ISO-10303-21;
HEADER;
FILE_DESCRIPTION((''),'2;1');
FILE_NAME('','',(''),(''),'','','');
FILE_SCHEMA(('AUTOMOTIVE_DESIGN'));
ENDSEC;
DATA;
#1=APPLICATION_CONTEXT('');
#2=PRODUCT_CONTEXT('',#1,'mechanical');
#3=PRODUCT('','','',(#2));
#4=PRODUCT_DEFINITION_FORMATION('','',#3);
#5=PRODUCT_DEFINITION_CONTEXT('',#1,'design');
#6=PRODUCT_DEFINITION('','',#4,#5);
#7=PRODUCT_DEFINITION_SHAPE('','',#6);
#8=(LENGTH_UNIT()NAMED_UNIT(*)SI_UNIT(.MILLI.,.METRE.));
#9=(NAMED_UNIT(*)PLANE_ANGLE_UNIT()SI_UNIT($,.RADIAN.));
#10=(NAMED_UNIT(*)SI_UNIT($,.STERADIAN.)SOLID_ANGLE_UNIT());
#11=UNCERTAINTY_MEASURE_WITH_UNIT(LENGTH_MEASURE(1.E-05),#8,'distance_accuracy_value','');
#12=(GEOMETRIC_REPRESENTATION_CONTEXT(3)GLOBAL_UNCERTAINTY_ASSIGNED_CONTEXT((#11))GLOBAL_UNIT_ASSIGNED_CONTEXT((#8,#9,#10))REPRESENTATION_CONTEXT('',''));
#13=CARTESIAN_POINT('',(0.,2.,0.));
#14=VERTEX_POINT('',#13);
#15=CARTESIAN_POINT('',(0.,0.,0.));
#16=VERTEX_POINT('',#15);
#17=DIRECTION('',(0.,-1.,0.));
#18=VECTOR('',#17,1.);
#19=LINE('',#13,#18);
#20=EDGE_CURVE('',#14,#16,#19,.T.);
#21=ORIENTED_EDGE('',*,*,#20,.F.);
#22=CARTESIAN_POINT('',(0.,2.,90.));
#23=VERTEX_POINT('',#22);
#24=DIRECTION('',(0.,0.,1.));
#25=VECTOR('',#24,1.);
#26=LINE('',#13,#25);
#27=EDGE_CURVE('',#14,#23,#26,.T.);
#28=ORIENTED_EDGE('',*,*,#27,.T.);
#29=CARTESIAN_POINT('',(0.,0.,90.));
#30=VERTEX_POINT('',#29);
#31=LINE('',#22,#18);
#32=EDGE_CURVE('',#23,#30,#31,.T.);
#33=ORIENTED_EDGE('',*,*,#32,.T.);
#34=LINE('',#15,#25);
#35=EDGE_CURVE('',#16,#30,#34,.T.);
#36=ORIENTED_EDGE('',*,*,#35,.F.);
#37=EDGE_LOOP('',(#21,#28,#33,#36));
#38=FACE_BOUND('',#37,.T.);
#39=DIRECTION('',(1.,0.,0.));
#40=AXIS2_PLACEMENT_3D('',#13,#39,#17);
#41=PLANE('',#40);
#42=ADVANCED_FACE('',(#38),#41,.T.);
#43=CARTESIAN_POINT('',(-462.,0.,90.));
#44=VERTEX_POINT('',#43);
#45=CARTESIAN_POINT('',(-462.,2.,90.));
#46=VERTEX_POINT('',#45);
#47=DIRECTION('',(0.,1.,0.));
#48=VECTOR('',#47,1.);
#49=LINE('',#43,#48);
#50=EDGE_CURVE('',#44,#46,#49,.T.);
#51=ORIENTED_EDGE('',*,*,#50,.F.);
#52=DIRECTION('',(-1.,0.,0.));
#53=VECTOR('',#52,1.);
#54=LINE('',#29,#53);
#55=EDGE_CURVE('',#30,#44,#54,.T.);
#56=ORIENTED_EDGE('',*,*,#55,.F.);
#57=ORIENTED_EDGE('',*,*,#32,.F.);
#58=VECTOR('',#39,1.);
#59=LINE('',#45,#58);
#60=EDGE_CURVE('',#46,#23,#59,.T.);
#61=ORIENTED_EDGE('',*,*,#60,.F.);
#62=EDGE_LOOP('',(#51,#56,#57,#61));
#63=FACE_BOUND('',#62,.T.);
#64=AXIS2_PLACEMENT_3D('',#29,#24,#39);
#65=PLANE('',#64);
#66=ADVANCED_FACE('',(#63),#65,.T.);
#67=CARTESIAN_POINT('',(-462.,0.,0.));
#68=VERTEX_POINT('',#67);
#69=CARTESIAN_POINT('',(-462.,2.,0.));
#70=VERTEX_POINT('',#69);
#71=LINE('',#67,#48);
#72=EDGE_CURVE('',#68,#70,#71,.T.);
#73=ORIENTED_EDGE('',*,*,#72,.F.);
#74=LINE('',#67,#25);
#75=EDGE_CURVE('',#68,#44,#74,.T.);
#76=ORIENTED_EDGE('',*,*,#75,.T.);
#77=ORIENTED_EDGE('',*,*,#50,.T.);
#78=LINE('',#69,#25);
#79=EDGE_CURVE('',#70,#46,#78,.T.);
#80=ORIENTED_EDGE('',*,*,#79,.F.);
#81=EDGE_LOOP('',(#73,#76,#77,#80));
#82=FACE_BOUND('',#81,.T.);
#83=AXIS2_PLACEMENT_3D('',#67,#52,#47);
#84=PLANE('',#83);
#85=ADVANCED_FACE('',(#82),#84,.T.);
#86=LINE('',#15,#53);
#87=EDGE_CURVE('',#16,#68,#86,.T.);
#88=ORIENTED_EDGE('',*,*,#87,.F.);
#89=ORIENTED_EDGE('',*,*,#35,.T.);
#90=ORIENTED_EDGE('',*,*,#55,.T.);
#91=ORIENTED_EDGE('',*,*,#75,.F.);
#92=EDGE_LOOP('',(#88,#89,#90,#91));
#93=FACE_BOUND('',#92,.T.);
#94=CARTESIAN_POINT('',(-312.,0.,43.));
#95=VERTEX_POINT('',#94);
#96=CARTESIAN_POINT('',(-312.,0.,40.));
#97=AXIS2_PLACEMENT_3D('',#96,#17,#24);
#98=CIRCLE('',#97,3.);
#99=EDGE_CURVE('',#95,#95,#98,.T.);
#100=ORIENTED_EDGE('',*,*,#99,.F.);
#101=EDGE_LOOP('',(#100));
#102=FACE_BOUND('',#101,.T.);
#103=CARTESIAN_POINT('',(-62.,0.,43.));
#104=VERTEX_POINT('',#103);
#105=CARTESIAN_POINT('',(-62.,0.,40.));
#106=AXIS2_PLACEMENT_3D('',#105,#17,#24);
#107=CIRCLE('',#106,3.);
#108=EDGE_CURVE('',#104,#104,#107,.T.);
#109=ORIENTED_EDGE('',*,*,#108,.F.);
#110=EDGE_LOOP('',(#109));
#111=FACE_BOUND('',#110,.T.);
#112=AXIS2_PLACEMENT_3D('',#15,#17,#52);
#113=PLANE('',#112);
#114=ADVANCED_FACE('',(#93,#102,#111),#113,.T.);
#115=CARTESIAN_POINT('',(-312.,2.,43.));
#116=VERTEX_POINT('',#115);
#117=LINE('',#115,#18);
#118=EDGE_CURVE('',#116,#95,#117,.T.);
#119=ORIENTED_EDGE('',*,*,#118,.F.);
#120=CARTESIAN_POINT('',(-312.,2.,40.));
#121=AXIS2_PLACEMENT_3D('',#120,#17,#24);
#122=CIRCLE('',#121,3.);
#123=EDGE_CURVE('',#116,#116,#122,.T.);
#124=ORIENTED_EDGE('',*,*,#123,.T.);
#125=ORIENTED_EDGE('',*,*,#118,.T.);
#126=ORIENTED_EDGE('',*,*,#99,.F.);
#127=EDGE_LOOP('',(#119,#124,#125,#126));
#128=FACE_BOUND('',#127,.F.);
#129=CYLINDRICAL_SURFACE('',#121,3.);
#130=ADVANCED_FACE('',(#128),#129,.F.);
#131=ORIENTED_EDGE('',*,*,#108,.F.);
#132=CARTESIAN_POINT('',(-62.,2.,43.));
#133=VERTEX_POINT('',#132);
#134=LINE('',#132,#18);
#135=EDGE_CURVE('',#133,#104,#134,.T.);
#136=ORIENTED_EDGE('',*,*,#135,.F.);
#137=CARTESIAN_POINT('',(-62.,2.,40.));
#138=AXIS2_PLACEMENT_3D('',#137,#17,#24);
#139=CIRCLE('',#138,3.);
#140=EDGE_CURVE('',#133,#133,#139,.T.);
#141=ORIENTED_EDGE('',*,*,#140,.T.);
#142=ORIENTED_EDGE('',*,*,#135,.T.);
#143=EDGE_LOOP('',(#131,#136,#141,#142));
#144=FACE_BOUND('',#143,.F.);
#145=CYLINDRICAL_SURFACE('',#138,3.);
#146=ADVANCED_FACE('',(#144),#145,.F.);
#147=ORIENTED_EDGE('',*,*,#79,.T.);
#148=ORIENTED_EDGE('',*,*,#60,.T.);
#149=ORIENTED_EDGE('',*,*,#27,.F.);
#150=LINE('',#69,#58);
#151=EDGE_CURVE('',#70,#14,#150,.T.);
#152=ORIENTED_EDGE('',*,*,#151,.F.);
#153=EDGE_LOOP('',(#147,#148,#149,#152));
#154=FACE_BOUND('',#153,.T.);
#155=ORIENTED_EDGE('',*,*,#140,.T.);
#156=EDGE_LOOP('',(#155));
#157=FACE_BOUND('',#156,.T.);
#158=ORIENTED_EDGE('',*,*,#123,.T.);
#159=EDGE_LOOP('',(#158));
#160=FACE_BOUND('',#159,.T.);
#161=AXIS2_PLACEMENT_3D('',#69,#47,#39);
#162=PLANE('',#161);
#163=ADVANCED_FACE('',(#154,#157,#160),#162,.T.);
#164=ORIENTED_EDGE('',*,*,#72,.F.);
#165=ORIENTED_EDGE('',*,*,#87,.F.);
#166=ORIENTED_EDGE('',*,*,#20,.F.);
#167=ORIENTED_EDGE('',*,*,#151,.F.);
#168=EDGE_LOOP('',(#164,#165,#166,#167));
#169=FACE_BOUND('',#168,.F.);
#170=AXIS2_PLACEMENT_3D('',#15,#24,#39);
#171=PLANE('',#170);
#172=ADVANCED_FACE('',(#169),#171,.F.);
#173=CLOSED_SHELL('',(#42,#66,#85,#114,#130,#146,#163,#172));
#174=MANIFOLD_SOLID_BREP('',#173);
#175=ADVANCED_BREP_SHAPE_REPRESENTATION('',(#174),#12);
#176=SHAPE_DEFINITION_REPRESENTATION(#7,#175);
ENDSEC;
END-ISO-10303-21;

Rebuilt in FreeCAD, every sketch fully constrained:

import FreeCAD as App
import Part
import Sketcher

V = App.Vector


def add_polygon(sketch, points):
    """Adds a closed chain of lines whose ends are joined by coincident constraints."""
    first, n = sketch.GeometryCount, len(points)
    for a, b in zip(points, points[1:] + points[:1]):
        sketch.addGeometry(Part.LineSegment(App.Vector(*a, 0), App.Vector(*b, 0)), False)
    for i in range(n):
        sketch.addConstraint(Sketcher.Constraint("Coincident", first + i, 2, first + (i + 1) % n, 1))

doc = App.newDocument("Part")
body = doc.addObject("PartDesign::Body", "Body")

sketch1 = body.newObject("Sketcher::SketchObject", "Sketch")
sketch1.AttachmentSupport = (doc.getObject("XY_Plane"), [""])
sketch1.MapMode = "FlatFace"
add_polygon(sketch1, [(-462, 0), (0, 0), (0, 2), (-462, 2)])
sketch1.addConstraint([
    Sketcher.Constraint("Horizontal", 0),
    Sketcher.Constraint("Vertical", 1),
    Sketcher.Constraint("Horizontal", 2),
    Sketcher.Constraint("Vertical", 3),
    Sketcher.Constraint("Coincident", 0, 2, -1, 1),
    Sketcher.Constraint("DistanceX", 0, 1, 0, 2, 462.0),
    Sketcher.Constraint("DistanceY", 1, 1, 1, 2, 2.0),
])
pad1 = body.newObject("PartDesign::Pad", "Pad")
pad1.Profile = sketch1
pad1.Length = 90

sketch2 = body.newObject("Sketcher::SketchObject", "Sketch001")
sketch2.AttachmentSupport = (doc.getObject("XZ_Plane"), [""])
sketch2.MapMode = "FlatFace"
sketch2.AttachmentOffset = App.Placement(V(0, 0, -2), App.Rotation())
sketch2.addGeometry(Part.Circle(V(-312, 40, 0), V(0, 0, 1), 3), False)
sketch2.addConstraint([
    Sketcher.Constraint("Diameter", 0, 6.0),
    Sketcher.Constraint("DistanceX", 0, 3, -1, 1, 312.0),
    Sketcher.Constraint("DistanceY", -1, 1, 0, 3, 40.0),
])
doc.recompute()
hole = body.newObject("PartDesign::Hole", "Hole")
hole.Profile = sketch2
hole.ThreadType = "None"
hole.Diameter = 6
hole.DepthType = "ThroughAll"
hole.Reversed = True

sketch3 = body.newObject("Sketcher::SketchObject", "Sketch002")
sketch3.AttachmentSupport = (doc.getObject("XZ_Plane"), [""])
sketch3.MapMode = "FlatFace"
sketch3.AttachmentOffset = App.Placement(V(0, 0, -2), App.Rotation())
sketch3.addGeometry(Part.Circle(V(-62, 40, 0), V(0, 0, 1), 3), False)
sketch3.addConstraint([
    Sketcher.Constraint("Diameter", 0, 6.0),
    Sketcher.Constraint("DistanceX", 0, 3, -1, 1, 62.0),
    Sketcher.Constraint("DistanceY", -1, 1, 0, 3, 40.0),
])
doc.recompute()
hole2 = body.newObject("PartDesign::Hole", "Hole001")
hole2.Profile = sketch3
hole2.ThreadType = "None"
hole2.Diameter = 6
hole2.DepthType = "ThroughAll"
hole2.Reversed = True

doc.recompute()
